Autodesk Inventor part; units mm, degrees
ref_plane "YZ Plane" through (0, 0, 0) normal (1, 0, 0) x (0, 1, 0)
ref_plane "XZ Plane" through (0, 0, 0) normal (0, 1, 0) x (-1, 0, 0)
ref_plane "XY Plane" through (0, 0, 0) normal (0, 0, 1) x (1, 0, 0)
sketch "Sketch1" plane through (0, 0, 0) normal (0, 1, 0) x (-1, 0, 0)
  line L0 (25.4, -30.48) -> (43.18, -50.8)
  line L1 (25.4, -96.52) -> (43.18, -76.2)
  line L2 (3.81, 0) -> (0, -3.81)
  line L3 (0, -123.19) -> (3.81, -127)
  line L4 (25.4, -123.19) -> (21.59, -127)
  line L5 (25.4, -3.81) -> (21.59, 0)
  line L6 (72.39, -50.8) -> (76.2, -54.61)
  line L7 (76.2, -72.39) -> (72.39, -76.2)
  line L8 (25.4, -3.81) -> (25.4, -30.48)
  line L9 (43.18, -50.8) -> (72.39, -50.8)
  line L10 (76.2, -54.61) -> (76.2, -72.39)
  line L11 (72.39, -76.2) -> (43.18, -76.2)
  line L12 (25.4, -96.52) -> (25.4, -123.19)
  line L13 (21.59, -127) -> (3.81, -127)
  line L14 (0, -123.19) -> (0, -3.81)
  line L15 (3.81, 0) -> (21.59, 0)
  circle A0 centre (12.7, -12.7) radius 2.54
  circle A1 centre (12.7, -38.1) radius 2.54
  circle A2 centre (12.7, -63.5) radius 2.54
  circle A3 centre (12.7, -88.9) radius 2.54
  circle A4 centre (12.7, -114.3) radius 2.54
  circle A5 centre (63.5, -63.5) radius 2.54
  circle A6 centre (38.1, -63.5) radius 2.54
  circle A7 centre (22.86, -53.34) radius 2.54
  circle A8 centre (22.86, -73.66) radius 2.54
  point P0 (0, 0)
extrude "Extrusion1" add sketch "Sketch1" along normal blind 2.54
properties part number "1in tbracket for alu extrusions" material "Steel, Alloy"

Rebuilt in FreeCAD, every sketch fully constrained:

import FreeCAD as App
import Part
import Sketcher

V = App.Vector
Q = App.Units.Quantity

doc = App.newDocument("Part")
params = doc.addObject("Spreadsheet::Sheet", "Params")
for row, (alias, value) in enumerate([
    ("sketch1_diameter", "0.2 in"),
    ("sketch1_width", "0.7 in"),
    ("sketch1_height", "4.7 in"),
    ("sketch1_width2", "1.15 in"),
    ("sketch1_height2", "1.05 in"),
    ("pad1_length", "0.1 in"),
], start=1):
    params.set(f"A{row}", alias)
    params.set(f"B{row}", "=" + value)
    params.setAlias(f"B{row}", alias)

body = doc.addObject("PartDesign::Body", "Body")

# Sketch on XZ plane
sketch1 = doc.addObject("Sketcher::SketchObject", "Sketch")
body.addObject(sketch1)
sketch1.AttachmentSupport = (doc.XZ_Plane, [""])
sketch1.MapMode = "FlatFace"
sketch1.addGeometry([
    Part.LineSegment(V(-43.18, -50.8, 0), V(-25.4, -30.48, 0)),  # 0
    Part.LineSegment(V(-25.4, -30.48, 0), V(-25.4, -3.81, 0)),  # 1
    Part.LineSegment(V(-25.4, -3.81, 0), V(-21.59, 0, 0)),  # 2
    Part.LineSegment(V(-21.59, 0, 0), V(-3.81, 0, 0)),  # 3
    Part.LineSegment(V(-3.81, 0, 0), V(0, -3.81, 0)),  # 4
    Part.LineSegment(V(0, -3.81, 0), V(0, -123.19, 0)),  # 5
    Part.LineSegment(V(0, -123.19, 0), V(-3.81, -127, 0)),  # 6
    Part.LineSegment(V(-3.81, -127, 0), V(-21.59, -127, 0)),  # 7
    Part.LineSegment(V(-21.59, -127, 0), V(-25.4, -123.19, 0)),  # 8
    Part.LineSegment(V(-25.4, -123.19, 0), V(-25.4, -96.52, 0)),  # 9
    Part.LineSegment(V(-25.4, -96.52, 0), V(-43.18, -76.2, 0)),  # 10
    Part.LineSegment(V(-43.18, -76.2, 0), V(-72.39, -76.2, 0)),  # 11
    Part.LineSegment(V(-72.39, -76.2, 0), V(-76.2, -72.39, 0)),  # 12
    Part.LineSegment(V(-76.2, -72.39, 0), V(-76.2, -54.61, 0)),  # 13
    Part.LineSegment(V(-76.2, -54.61, 0), V(-72.39, -50.8, 0)),  # 14
    Part.LineSegment(V(-72.39, -50.8, 0), V(-43.18, -50.8, 0)),  # 15
    Part.Circle(V(-12.7, -114.3, 0), V(0, 0, 1), 2.54),  # 16
    Part.Circle(V(-12.7, -88.9, 0), V(0, 0, 1), 2.54),  # 17
    Part.Circle(V(-22.86, -73.66, 0), V(0, 0, 1), 2.54),  # 18
    Part.Circle(V(-12.7, -63.5, 0), V(0, 0, 1), 2.54),  # 19
    Part.Circle(V(-12.7, -38.1, 0), V(0, 0, 1), 2.54),  # 20
    Part.Circle(V(-22.86, -53.34, 0), V(0, 0, 1), 2.54),  # 21
    Part.Circle(V(-12.7, -12.7, 0), V(0, 0, 1), 2.54),  # 22
    Part.Circle(V(-38.1, -63.5, 0), V(0, 0, 1), 2.54),  # 23
    Part.Circle(V(-63.5, -63.5, 0), V(0, 0, 1), 2.54),  # 24
], False)
sketch1.addConstraint([
    Sketcher.Constraint("Coincident", 0, 2, 1, 1),
    Sketcher.Constraint("Coincident", 1, 2, 2, 1),
    Sketcher.Constraint("Coincident", 2, 2, 3, 1),
    Sketcher.Constraint("Coincident", 3, 2, 4, 1),
    Sketcher.Constraint("Coincident", 4, 2, 5, 1),
    Sketcher.Constraint("Coincident", 5, 2, 6, 1),
    Sketcher.Constraint("Coincident", 6, 2, 7, 1),
    Sketcher.Constraint("Coincident", 7, 2, 8, 1),
    Sketcher.Constraint("Coincident", 8, 2, 9, 1),
    Sketcher.Constraint("Coincident", 9, 2, 10, 1),
    Sketcher.Constraint("Coincident", 10, 2, 11, 1),
    Sketcher.Constraint("Coincident", 11, 2, 12, 1),
    Sketcher.Constraint("Coincident", 12, 2, 13, 1),
    Sketcher.Constraint("Coincident", 13, 2, 14, 1),
    Sketcher.Constraint("Coincident", 14, 2, 15, 1),
    Sketcher.Constraint("Coincident", 15, 2, 0, 1),
    Sketcher.Constraint("Vertical", 1),
    Sketcher.Constraint("Horizontal", 3),
    Sketcher.Constraint("Vertical", 5),
    Sketcher.Constraint("Horizontal", 7),
    Sketcher.Constraint("Vertical", 9),
    Sketcher.Constraint("Horizontal", 11),
    Sketcher.Constraint("Vertical", 13),
    Sketcher.Constraint("Horizontal", 15),
    Sketcher.Constraint("Equal", 16, 17),
    Sketcher.Constraint("Equal", 17, 18),
    Sketcher.Constraint("Equal", 18, 19),
    Sketcher.Constraint("Equal", 19, 20),
    Sketcher.Constraint("Equal", 20, 21),
    Sketcher.Constraint("Equal", 21, 22),
    Sketcher.Constraint("Equal", 22, 23),
    Sketcher.Constraint("Equal", 23, 24),
    Sketcher.Constraint("PointOnObject", 2, 2, -1),
    Sketcher.Constraint("PointOnObject", 4, 2, -2),
    Sketcher.Constraint("Perpendicular", 2, 4),
    Sketcher.Constraint("Perpendicular", 4, 6),
    Sketcher.Constraint("Perpendicular", 6, 8),
    Sketcher.Constraint("Parallel", 8, 12),
    Sketcher.Constraint("Perpendicular", 12, 14),
    Sketcher.Constraint("Horizontal", 19, 3, 23, 3),
    Sketcher.Constraint("Horizontal", 23, 3, 24, 3),
    Sketcher.Constraint("Horizontal", 1, 2, 4, 2),
    Sketcher.Constraint("Horizontal", 5, 2, 8, 2),
    Sketcher.Constraint("Vertical", 16, 3, 17, 3),
    Sketcher.Constraint("Vertical", 17, 3, 19, 3),
    Sketcher.Constraint("Vertical", 19, 3, 20, 3),
    Sketcher.Constraint("Vertical", 18, 3, 21, 3),
    Sketcher.Constraint("Vertical", 20, 3, 22, 3),
    Sketcher.Constraint("Vertical", 3, 2, 6, 2),
    Sketcher.Constraint("Vertical", 2, 2, 7, 2),
    Sketcher.Constraint("Vertical", 1, 2, 8, 2),
    Sketcher.Constraint("Vertical", 11, 2, 14, 2),
    Sketcher.Constraint("Vertical", 10, 2, 15, 2),
    Sketcher.Constraint("Equal", 1, 9),
    Sketcher.Constraint("Equal", 7, 13),
    Sketcher.Constraint("Equal", 0, 10),
    Sketcher.Constraint("Equal", 8, 12),
    Sketcher.Constraint("Diameter", 16, Q("0.2 in")),
    Sketcher.Constraint("DistanceX", 3, 1, 3, 2, Q("0.7 in")),
    Sketcher.Constraint("DistanceY", 5, 2, 5, 1, Q("4.7 in")),
    Sketcher.Constraint("DistanceX", 0, 2, -1, 1, Q("1 in")),
    Sketcher.Constraint("DistanceX", 12, 2, -1, 1, Q("3 in")),
    Sketcher.Constraint("DistanceY", 16, 3, 17, 3, Q("1 in")),
    Sketcher.Constraint("DistanceY", 17, 3, 19, 3, Q("1 in")),
    Sketcher.Constraint("DistanceY", 19, 3, 20, 3, Q("1 in")),
    Sketcher.Constraint("DistanceY", 20, 3, 22, 3, Q("1 in")),
    Sketcher.Constraint("DistanceX", 23, 3, 19, 3, Q("1 in")),
    Sketcher.Constraint("DistanceX", 24, 3, 23, 3, Q("1 in")),
    Sketcher.Constraint("DistanceX", 11, 2, 11, 1, Q("1.15 in")),
    Sketcher.Constraint("DistanceY", 1, 1, 1, 2, Q("1.05 in")),
    Sketcher.Constraint("DistanceX", 16, 3, -1, 1, Q("0.5 in")),
    Sketcher.Constraint("DistanceY", 16, 3, -1, 1, Q("4.5 in")),
    Sketcher.Constraint("DistanceX", 18, 3, -1, 1, Q("0.9 in")),
    Sketcher.Constraint("DistanceY", 18, 3, -1, 1, Q("2.9 in")),
    Sketcher.Constraint("DistanceY", 21, 3, -1, 1, Q("2.1 in")),
])
sketch1.setExpression("Constraints[57]", "Params.sketch1_diameter")
sketch1.setExpression("Constraints[58]", "Params.sketch1_width")
sketch1.setExpression("Constraints[59]", "Params.sketch1_height")
sketch1.setExpression("Constraints[68]", "Params.sketch1_width2")
sketch1.setExpression("Constraints[69]", "Params.sketch1_height2")
pad1 = doc.addObject("PartDesign::Pad", "Pad")
body.addObject(pad1)
pad1.Profile = sketch1
pad1.setExpression("Length", "Params.pad1_length")
pad1.Reversed = True

doc.recompute()
